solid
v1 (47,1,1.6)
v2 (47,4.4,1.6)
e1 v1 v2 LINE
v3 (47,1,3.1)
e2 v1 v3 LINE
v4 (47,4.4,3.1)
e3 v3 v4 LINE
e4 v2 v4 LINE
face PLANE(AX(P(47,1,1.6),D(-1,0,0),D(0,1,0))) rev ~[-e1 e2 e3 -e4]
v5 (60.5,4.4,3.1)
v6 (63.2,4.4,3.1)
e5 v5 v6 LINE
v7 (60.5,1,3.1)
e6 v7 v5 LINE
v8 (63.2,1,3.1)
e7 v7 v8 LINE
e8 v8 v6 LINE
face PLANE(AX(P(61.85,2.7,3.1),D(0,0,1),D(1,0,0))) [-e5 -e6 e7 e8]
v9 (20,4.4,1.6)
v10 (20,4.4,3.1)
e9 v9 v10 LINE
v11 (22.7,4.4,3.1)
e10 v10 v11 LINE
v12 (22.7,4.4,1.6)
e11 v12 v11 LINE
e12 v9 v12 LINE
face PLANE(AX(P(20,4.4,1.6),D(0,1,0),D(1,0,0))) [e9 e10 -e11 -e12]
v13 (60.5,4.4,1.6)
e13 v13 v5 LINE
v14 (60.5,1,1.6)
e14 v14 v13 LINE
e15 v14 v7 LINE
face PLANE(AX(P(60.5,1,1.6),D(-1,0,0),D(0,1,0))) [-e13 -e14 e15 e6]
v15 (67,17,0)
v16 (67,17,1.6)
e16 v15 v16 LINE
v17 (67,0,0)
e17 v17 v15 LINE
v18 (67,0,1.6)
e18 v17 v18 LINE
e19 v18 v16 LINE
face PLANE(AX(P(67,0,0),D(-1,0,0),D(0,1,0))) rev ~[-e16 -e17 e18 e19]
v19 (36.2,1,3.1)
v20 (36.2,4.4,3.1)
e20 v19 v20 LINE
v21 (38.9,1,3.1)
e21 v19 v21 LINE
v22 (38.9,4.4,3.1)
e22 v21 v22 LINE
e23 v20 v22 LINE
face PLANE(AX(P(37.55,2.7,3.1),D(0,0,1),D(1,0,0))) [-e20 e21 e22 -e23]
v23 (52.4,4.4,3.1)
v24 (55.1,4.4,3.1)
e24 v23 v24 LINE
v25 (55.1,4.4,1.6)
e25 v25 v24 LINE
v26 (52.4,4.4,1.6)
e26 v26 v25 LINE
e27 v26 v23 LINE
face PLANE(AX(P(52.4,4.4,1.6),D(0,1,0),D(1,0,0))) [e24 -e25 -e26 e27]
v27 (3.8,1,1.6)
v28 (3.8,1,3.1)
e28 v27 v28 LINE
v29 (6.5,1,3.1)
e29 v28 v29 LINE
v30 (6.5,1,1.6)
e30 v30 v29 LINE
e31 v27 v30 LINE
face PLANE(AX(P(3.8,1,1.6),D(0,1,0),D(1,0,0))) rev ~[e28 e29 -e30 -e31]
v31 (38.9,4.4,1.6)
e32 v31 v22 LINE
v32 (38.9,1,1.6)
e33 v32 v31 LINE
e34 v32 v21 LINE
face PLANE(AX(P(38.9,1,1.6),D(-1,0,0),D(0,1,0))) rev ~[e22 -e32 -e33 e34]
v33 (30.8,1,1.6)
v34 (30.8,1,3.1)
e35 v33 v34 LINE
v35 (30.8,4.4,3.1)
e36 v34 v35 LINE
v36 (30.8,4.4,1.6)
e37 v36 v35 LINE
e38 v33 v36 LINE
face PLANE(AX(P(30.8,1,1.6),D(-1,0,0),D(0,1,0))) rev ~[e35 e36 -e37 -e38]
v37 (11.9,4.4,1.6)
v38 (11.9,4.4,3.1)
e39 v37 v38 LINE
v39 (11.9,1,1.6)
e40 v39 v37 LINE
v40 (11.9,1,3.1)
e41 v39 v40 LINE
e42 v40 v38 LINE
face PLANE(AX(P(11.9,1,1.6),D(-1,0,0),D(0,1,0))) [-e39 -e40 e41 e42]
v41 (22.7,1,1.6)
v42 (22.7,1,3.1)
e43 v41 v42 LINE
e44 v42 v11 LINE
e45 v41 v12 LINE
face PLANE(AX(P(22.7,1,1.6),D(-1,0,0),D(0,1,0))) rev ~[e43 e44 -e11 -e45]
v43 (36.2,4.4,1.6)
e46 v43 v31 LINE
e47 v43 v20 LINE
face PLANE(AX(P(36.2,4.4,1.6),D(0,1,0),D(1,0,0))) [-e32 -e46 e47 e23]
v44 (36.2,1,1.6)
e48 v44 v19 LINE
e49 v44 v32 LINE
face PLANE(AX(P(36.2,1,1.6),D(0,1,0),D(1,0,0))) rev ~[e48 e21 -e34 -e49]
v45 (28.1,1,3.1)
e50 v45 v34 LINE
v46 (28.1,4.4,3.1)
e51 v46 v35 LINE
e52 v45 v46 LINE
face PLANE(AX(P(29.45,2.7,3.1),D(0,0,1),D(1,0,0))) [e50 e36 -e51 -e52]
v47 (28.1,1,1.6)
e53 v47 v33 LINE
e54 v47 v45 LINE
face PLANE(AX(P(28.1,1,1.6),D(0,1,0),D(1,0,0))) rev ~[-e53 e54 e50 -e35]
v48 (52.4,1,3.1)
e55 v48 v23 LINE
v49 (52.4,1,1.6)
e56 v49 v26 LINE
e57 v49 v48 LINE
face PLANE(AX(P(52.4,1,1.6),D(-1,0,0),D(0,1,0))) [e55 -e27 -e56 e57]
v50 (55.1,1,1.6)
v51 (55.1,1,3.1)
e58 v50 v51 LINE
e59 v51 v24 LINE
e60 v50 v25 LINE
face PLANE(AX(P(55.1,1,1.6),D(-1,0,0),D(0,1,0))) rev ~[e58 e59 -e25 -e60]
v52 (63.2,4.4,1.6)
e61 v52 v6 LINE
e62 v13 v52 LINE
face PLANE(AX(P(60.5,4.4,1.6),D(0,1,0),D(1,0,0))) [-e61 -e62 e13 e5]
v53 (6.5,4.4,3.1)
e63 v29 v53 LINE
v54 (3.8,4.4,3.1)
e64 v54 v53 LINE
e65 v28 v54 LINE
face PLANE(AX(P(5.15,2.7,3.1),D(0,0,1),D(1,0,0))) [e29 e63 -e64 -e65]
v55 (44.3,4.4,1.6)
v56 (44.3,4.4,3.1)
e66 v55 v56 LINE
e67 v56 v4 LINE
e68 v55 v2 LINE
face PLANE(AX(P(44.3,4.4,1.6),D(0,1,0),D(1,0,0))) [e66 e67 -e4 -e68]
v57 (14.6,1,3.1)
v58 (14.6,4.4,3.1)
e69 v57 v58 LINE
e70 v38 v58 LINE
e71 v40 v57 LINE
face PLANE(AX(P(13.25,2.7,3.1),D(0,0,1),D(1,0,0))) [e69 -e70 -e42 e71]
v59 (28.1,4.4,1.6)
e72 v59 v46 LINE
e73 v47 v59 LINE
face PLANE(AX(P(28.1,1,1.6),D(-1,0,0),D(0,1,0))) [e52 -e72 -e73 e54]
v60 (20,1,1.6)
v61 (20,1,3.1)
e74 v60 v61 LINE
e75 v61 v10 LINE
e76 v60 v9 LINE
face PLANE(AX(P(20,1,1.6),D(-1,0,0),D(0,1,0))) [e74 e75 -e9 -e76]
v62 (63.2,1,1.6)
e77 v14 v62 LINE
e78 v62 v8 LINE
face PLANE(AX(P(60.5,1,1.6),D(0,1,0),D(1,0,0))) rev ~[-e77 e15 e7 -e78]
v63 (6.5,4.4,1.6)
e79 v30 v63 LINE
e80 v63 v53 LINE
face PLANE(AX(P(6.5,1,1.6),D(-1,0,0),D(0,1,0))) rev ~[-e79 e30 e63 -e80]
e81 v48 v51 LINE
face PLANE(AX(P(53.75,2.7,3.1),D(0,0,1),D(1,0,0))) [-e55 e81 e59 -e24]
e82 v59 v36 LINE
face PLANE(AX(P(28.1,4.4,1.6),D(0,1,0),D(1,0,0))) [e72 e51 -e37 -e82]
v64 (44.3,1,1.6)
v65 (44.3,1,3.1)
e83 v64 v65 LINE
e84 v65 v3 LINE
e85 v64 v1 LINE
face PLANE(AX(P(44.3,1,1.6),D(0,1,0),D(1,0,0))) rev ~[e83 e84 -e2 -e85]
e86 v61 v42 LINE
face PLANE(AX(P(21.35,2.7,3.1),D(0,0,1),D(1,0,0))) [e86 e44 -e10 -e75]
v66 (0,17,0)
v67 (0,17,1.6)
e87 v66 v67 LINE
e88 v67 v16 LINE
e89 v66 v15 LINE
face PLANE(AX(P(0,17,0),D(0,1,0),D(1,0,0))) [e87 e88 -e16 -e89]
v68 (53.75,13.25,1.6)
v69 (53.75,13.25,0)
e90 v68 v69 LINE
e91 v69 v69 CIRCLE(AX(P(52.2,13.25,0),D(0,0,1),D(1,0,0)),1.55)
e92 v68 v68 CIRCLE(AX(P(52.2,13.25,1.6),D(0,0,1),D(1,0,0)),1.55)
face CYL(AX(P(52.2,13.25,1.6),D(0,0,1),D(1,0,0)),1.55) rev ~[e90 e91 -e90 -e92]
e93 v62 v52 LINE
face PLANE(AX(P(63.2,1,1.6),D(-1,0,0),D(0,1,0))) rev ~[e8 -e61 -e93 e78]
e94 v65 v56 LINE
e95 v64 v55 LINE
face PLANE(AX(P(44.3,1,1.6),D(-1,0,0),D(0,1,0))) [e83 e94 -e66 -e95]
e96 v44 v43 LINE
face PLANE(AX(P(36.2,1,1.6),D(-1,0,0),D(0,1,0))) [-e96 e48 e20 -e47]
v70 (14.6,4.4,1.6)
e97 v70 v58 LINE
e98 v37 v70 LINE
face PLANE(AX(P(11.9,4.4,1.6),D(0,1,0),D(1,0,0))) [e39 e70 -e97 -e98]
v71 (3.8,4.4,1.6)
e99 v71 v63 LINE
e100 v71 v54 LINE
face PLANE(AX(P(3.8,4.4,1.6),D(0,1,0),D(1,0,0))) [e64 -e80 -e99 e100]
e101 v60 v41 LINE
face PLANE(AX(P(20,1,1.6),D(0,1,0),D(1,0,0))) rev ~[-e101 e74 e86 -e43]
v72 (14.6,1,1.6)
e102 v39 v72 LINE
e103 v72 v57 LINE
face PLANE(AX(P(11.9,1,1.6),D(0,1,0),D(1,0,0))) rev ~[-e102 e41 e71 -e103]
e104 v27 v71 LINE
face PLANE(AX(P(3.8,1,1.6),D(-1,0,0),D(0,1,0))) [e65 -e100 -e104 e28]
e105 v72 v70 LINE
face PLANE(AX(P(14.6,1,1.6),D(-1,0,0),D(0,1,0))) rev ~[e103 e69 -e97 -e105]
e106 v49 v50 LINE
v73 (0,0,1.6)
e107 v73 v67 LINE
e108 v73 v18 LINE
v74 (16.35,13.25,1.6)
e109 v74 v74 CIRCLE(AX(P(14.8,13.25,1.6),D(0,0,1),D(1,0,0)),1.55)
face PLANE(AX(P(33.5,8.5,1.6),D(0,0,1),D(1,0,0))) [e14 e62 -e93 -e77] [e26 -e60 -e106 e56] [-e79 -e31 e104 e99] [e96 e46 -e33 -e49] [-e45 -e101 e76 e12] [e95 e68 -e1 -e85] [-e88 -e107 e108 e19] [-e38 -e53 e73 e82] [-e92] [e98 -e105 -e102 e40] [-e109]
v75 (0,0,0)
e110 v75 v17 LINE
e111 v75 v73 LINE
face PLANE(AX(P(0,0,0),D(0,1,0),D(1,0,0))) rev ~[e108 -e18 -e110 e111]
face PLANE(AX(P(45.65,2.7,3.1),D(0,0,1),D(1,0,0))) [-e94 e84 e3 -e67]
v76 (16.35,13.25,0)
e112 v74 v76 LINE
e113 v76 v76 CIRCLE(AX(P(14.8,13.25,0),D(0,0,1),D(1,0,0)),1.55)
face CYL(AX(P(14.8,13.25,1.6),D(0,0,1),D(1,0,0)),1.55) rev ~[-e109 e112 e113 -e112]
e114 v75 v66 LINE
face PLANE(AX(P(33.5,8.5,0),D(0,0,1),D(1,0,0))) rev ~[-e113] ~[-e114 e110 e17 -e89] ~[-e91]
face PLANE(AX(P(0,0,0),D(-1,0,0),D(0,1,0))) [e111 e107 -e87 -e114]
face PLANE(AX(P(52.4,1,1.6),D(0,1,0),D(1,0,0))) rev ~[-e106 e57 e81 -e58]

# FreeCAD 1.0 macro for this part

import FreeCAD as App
import Part
import Sketcher
Q = App.Units.Quantity


def add_polygon(sketch, points):
    """Adds a closed chain of lines whose ends are joined by coincident constraints."""
    first, n = sketch.GeometryCount, len(points)
    for a, b in zip(points, points[1:] + points[:1]):
        sketch.addGeometry(Part.LineSegment(App.Vector(*a, 0), App.Vector(*b, 0)), False)
    for i in range(n):
        sketch.addConstraint(Sketcher.Constraint("Coincident", first + i, 2, first + (i + 1) % n, 1))

doc = App.newDocument("Part")
body = doc.addObject("PartDesign::Body", "Body")

sketch1 = body.newObject("Sketcher::SketchObject", "Sketch")
sketch1.AttachmentSupport = (doc.getObject("XY_Plane"), [""])
sketch1.MapMode = "FlatFace"
add_polygon(sketch1, [(0, 17), (0, 0), (67, 0), (67, 17)])
sketch1.addConstraint([
    Sketcher.Constraint("Vertical", 0),
    Sketcher.Constraint("Horizontal", 1),
    Sketcher.Constraint("Vertical", 2),
    Sketcher.Constraint("Horizontal", 3),
    Sketcher.Constraint("Coincident", 0, 2, -1, 1),
    Sketcher.Constraint("DistanceX", 1, 1, 1, 2, Q("67 mm")),
    Sketcher.Constraint("DistanceY", 0, 2, 0, 1, Q("17 mm")),
])
pad1 = body.newObject("PartDesign::Pad", "Pad")
pad1.Profile = sketch1
pad1.Length = 1.6

sketch2 = body.newObject("Sketcher::SketchObject", "Sketch001")
sketch2.AttachmentSupport = (doc.getObject("XY_Plane"), [""])
sketch2.MapMode = "FlatFace"
sketch2.AttachmentOffset = App.Placement(App.Vector(0, 0, 1.6), App.Rotation())
sketch2.addGeometry([
    Part.Circle(App.Vector(14.8, 13.2, 0), App.Vector(0, 0, 1), 1.6),
    Part.Circle(App.Vector(52.2, 13.2, 0), App.Vector(0, 0, 1), 1.6),
], False)
sketch2.addConstraint([
    Sketcher.Constraint("Equal", 0, 1),
    Sketcher.Constraint("Horizontal", 0, 3, 1, 3),
    Sketcher.Constraint("Diameter", 0, Q("3.1 mm")),
    Sketcher.Constraint("DistanceX", -1, 1, 0, 3, Q("14.8 mm")),
    Sketcher.Constraint("DistanceX", -1, 1, 1, 3, Q("52.2 mm")),
    Sketcher.Constraint("DistanceY", -1, 1, 0, 3, Q("13.25 mm")),
])
pocket1 = body.newObject("PartDesign::Pocket", "Pocket")
pocket1.Profile = sketch2
pocket1.Type = "ThroughAll"

sketch3 = body.newObject("Sketcher::SketchObject", "Sketch002")
sketch3.AttachmentSupport = (doc.getObject("XY_Plane"), [""])
sketch3.MapMode = "FlatFace"
sketch3.AttachmentOffset = App.Placement(App.Vector(0, 0, 1.6), App.Rotation())
add_polygon(sketch3, [(3.8, 4.4), (3.8, 1), (6.5, 1), (6.5, 4.4)])
add_polygon(sketch3, [(11.9, 4.4), (11.9, 1), (14.6, 1), (14.6, 4.4)])
add_polygon(sketch3, [(20, 4.4), (20, 1), (22.7, 1), (22.7, 4.4)])
add_polygon(sketch3, [(28.1, 4.4), (28.1, 1), (30.8, 1), (30.8, 4.4)])
add_polygon(sketch3, [(36.2, 4.4), (36.2, 1), (38.9, 1), (38.9, 4.4)])
add_polygon(sketch3, [(44.3, 4.4), (44.3, 1), (47, 1), (47, 4.4)])
add_polygon(sketch3, [(52.4, 4.4), (52.4, 1), (55.1, 1), (55.1, 4.4)])
add_polygon(sketch3, [(60.5, 4.4), (60.5, 1), (63.2, 1), (63.2, 4.4)])
sketch3.addConstraint([
    Sketcher.Constraint("Vertical", 0),
    Sketcher.Constraint("Horizontal", 1),
    Sketcher.Constraint("Vertical", 2),
    Sketcher.Constraint("Horizontal", 3),
    Sketcher.Constraint("Vertical", 4),
    Sketcher.Constraint("Horizontal", 5),
    Sketcher.Constraint("Vertical", 6),
    Sketcher.Constraint("Horizontal", 7),
    Sketcher.Constraint("Vertical", 8),
    Sketcher.Constraint("Horizontal", 9),
    Sketcher.Constraint("Vertical", 10),
    Sketcher.Constraint("Horizontal", 11),
    Sketcher.Constraint("Vertical", 12),
    Sketcher.Constraint("Horizontal", 13),
    Sketcher.Constraint("Vertical", 14),
    Sketcher.Constraint("Horizontal", 15),
    Sketcher.Constraint("Vertical", 16),
    Sketcher.Constraint("Horizontal", 17),
    Sketcher.Constraint("Vertical", 18),
    Sketcher.Constraint("Horizontal", 19),
    Sketcher.Constraint("Vertical", 20),
    Sketcher.Constraint("Horizontal", 21),
    Sketcher.Constraint("Vertical", 22),
    Sketcher.Constraint("Horizontal", 23),
    Sketcher.Constraint("Vertical", 24),
    Sketcher.Constraint("Horizontal", 25),
    Sketcher.Constraint("Vertical", 26),
    Sketcher.Constraint("Horizontal", 27),
    Sketcher.Constraint("Vertical", 28),
    Sketcher.Constraint("Horizontal", 29),
    Sketcher.Constraint("Vertical", 30),
    Sketcher.Constraint("Horizontal", 31),
    Sketcher.Constraint("Horizontal", 1, 2, 4, 2),
    Sketcher.Constraint("Horizontal", 3, 2, 6, 2),
    Sketcher.Constraint("Horizontal", 5, 2, 8, 2),
    Sketcher.Constraint("Horizontal", 7, 2, 10, 2),
    Sketcher.Constraint("Horizontal", 9, 2, 12, 2),
    Sketcher.Constraint("Horizontal", 11, 2, 14, 2),
    Sketcher.Constraint("Horizontal", 13, 2, 16, 2),
    Sketcher.Constraint("Horizontal", 15, 2, 18, 2),
    Sketcher.Constraint("Horizontal", 17, 2, 20, 2),
    Sketcher.Constraint("Horizontal", 19, 2, 22, 2),
    Sketcher.Constraint("Horizontal", 21, 2, 24, 2),
    Sketcher.Constraint("Horizontal", 23, 2, 26, 2),
    Sketcher.Constraint("Horizontal", 25, 2, 28, 2),
    Sketcher.Constraint("Horizontal", 27, 2, 30, 2),
    Sketcher.Constraint("Equal", 3, 5),
    Sketcher.Constraint("Equal", 7, 9),
    Sketcher.Constraint("Equal", 11, 13),
    Sketcher.Constraint("Equal", 15, 17),
    Sketcher.Constraint("Equal", 19, 21),
    Sketcher.Constraint("Equal", 23, 25),
    Sketcher.Constraint("Equal", 27, 29),
    Sketcher.Constraint("DistanceX", 1, 1, 1, 2, Q("2.7 mm")),
    Sketcher.Constraint("DistanceY", 0, 2, 0, 1, Q("3.4 mm")),
    Sketcher.Constraint("DistanceY", -1, 1, 0, 2, Q("1 mm")),
    Sketcher.Constraint("DistanceX", -1, 1, 8, 2, Q("20 mm")),
    Sketcher.Constraint("DistanceX", -1, 1, 21, 2, Q("47 mm")),
    Sketcher.Constraint("DistanceX", -1, 1, 0, 2, Q("3.8 mm")),
    Sketcher.Constraint("DistanceX", -1, 1, 4, 2, Q("11.9 mm")),
    Sketcher.Constraint("DistanceX", -1, 1, 12, 2, Q("28.1 mm")),
    Sketcher.Constraint("DistanceX", -1, 1, 16, 2, Q("36.2 mm")),
    Sketcher.Constraint("DistanceX", -1, 1, 24, 2, Q("52.4 mm")),
    Sketcher.Constraint("DistanceX", -1, 1, 28, 2, Q("60.5 mm")),
])
pad2 = body.newObject("PartDesign::Pad", "Pad001")
pad2.Profile = sketch3
pad2.Length = 1.5

doc.recompute()
